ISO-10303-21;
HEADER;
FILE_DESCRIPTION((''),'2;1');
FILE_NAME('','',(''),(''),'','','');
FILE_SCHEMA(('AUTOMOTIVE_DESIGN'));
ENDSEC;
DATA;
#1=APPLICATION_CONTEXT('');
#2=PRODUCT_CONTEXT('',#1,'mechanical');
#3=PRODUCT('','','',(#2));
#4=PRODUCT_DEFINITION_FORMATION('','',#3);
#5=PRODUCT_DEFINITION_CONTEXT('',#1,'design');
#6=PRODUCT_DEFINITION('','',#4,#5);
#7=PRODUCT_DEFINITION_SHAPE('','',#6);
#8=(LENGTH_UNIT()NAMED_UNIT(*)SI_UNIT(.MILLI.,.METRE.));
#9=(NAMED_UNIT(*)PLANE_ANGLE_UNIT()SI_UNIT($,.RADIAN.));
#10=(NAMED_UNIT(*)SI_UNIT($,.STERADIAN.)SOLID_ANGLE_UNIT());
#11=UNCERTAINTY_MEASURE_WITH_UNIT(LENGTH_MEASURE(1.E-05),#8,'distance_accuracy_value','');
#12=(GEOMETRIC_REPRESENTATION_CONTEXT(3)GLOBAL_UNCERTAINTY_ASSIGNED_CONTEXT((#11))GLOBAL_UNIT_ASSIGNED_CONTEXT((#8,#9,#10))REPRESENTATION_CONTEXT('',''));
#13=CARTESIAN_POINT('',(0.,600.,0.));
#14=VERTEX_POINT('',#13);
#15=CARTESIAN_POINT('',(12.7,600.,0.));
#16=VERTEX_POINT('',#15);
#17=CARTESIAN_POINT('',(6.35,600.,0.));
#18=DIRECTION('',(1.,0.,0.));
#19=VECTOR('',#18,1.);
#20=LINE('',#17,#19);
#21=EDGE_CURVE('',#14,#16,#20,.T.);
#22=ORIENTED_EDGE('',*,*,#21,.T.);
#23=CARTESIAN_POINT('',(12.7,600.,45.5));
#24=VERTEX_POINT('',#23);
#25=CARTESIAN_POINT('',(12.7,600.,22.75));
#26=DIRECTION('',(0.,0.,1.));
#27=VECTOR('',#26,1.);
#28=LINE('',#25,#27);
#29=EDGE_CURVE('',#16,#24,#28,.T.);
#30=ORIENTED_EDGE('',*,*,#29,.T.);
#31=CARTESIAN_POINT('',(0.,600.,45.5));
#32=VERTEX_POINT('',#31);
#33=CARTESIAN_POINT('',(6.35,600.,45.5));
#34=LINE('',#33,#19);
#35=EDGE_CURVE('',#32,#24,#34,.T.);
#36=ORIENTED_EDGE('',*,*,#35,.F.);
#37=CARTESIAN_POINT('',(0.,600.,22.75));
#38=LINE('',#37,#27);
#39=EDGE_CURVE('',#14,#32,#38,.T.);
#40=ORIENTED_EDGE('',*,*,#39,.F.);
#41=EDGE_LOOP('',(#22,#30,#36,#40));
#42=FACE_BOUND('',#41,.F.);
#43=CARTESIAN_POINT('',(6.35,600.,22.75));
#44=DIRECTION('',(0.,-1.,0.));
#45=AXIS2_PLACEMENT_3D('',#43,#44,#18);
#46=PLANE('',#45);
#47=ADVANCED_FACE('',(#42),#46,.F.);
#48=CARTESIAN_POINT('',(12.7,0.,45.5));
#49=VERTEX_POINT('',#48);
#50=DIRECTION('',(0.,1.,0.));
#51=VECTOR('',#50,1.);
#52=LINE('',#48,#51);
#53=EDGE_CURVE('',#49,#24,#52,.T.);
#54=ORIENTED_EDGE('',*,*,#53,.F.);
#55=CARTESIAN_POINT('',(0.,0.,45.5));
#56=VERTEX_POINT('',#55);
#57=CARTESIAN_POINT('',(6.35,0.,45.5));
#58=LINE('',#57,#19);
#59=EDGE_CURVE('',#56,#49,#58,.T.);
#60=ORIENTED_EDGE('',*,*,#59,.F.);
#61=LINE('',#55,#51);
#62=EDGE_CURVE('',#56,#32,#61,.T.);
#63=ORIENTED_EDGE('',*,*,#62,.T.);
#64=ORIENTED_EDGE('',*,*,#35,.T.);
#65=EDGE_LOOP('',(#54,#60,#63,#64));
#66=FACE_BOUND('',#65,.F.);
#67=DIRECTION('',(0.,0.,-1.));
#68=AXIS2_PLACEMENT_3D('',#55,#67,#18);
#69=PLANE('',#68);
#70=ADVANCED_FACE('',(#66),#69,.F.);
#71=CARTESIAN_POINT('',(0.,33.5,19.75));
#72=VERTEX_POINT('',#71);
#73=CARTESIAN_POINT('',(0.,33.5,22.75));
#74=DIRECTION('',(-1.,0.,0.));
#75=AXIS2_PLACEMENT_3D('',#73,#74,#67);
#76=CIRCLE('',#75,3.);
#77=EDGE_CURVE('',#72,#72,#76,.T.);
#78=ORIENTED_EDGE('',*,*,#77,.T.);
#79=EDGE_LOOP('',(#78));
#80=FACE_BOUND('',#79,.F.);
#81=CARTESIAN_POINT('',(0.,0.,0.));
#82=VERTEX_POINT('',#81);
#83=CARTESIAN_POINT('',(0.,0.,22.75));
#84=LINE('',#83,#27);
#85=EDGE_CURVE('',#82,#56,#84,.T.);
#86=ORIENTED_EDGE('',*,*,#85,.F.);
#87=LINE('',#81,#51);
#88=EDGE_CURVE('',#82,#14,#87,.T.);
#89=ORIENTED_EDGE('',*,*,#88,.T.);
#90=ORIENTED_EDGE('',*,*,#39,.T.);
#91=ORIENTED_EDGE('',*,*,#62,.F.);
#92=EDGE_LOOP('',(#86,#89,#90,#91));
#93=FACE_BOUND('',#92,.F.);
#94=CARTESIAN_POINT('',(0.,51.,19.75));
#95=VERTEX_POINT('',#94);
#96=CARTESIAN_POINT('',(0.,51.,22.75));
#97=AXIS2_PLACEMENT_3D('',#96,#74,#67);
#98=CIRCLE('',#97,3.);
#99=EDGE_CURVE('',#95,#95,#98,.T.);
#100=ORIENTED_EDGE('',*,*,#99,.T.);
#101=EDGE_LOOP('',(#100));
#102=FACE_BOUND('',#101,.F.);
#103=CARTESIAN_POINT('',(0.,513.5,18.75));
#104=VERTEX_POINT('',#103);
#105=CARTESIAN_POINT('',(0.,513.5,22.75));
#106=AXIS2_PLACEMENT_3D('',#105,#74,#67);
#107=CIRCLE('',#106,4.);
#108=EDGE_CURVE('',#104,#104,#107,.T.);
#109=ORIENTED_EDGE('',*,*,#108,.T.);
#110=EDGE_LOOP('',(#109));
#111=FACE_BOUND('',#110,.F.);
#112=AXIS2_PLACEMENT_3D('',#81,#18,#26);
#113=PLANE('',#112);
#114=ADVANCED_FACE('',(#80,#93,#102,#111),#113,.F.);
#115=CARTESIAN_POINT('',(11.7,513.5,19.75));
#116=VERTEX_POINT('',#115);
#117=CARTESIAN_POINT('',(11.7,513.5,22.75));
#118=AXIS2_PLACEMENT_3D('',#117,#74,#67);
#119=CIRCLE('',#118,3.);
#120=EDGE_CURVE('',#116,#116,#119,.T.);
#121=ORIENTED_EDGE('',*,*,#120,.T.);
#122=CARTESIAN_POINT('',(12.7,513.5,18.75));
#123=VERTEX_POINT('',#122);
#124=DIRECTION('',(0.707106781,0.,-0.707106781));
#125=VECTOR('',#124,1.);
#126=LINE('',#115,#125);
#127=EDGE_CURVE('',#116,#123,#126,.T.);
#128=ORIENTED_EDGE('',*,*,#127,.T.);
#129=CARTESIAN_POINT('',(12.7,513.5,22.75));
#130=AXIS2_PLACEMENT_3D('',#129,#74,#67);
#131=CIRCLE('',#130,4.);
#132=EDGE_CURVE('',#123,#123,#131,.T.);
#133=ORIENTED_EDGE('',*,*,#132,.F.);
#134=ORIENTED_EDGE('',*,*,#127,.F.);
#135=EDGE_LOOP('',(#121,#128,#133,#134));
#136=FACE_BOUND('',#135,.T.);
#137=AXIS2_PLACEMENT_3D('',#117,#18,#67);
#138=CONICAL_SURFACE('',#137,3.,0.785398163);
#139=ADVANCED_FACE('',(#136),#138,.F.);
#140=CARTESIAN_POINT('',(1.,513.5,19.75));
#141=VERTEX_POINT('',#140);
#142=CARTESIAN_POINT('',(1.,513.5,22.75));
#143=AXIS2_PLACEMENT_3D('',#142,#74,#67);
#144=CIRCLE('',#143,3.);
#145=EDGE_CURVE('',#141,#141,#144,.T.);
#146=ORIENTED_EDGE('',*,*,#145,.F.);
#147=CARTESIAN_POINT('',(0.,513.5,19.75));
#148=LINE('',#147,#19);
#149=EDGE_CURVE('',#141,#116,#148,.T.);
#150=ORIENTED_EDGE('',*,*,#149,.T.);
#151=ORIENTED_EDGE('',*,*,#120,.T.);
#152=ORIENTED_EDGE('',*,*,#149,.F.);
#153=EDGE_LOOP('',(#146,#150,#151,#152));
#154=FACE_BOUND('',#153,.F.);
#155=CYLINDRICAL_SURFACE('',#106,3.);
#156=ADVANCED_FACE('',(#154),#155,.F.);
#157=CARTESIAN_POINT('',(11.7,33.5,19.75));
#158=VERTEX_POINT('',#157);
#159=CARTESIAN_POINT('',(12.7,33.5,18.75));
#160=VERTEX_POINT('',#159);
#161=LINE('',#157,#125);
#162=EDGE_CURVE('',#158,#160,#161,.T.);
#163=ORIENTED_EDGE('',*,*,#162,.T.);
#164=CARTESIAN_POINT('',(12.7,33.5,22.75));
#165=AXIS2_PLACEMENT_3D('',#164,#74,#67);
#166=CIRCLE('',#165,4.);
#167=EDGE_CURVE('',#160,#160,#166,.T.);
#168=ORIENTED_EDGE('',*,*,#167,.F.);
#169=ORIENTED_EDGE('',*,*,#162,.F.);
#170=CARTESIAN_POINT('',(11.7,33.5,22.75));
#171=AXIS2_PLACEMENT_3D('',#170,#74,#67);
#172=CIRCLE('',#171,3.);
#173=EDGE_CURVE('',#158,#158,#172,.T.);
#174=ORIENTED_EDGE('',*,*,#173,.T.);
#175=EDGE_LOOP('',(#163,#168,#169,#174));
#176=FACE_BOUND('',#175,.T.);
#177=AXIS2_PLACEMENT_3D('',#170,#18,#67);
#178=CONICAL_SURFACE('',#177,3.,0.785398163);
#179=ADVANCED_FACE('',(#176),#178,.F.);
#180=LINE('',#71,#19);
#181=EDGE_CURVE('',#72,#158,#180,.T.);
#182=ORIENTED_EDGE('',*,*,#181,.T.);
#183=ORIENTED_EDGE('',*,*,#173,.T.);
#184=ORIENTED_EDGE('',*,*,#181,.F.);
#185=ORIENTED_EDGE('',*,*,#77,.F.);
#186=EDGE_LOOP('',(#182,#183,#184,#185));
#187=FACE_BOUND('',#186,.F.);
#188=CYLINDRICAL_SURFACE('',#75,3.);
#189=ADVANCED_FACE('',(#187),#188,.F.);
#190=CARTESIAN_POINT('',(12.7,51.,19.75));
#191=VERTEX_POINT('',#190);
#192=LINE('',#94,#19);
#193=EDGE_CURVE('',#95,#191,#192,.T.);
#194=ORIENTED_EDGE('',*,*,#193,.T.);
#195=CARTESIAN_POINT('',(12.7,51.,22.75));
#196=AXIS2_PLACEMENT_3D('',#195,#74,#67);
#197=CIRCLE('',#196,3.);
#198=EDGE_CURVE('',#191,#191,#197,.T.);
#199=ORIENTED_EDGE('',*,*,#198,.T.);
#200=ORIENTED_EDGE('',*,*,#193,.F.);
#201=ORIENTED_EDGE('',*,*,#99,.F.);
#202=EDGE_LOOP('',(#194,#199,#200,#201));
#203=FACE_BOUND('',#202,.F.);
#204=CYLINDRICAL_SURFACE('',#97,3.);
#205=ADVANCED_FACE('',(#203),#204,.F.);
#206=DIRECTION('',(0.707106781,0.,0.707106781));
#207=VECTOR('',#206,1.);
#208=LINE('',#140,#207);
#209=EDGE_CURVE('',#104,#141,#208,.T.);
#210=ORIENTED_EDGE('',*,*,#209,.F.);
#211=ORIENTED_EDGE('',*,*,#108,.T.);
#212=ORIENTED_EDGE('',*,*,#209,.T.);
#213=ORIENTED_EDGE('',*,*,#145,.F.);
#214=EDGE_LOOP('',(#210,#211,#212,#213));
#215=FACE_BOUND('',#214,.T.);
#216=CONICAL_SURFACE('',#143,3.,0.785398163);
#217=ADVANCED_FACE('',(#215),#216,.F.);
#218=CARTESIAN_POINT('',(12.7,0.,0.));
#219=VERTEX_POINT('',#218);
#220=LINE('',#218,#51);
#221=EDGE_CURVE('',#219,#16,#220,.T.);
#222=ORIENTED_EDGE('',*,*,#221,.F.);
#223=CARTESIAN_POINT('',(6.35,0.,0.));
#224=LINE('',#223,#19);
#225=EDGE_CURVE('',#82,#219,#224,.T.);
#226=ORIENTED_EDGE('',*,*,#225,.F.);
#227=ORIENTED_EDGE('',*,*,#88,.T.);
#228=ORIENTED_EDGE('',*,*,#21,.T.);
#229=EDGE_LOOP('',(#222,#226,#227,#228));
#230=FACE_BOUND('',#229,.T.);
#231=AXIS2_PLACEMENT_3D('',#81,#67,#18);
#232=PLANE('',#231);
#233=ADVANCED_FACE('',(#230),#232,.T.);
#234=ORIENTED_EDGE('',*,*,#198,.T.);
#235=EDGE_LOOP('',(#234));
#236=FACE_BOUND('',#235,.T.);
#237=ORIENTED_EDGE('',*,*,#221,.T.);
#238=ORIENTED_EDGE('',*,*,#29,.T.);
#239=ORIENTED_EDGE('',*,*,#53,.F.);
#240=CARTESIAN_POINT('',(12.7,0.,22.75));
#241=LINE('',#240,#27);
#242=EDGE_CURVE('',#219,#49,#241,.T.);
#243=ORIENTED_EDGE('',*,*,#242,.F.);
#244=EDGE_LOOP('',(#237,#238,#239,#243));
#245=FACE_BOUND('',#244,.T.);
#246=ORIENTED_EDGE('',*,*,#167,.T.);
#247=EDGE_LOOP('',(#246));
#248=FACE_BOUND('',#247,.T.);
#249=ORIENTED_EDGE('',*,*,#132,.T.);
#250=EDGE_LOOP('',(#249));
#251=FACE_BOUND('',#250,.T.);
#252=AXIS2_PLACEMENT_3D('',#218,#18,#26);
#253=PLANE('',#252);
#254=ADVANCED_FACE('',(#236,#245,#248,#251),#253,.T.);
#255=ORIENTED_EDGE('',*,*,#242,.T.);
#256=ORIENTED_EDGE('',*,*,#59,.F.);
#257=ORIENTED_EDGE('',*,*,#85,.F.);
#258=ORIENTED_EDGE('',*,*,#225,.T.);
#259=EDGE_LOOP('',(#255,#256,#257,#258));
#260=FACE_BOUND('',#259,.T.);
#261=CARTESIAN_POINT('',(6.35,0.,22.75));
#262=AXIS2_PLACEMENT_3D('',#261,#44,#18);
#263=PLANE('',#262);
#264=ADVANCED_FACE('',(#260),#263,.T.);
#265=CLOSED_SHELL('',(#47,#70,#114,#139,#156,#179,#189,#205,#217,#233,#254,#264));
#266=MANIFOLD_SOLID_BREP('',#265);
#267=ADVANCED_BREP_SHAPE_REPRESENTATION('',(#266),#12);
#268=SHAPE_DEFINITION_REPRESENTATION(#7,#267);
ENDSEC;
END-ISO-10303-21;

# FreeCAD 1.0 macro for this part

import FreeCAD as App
import Part
import Sketcher

V = App.Vector
Q = App.Units.Quantity


def edges_at(feature, points):
    """Names of the edges that pass closest to the given points."""
    edges = feature.Shape.Edges
    near = lambda p: min(range(len(edges)), key=lambda i: edges[i].distToShape(Part.Vertex(*p))[0])
    return sorted({f"Edge{near(p) + 1}" for p in points})

doc = App.newDocument("Part")
body = doc.addObject("PartDesign::Body", "Body")

# Sketch on XZ plane
sketch1 = doc.addObject("Sketcher::SketchObject", "Sketch")
body.addObject(sketch1)
sketch1.AttachmentSupport = (doc.XZ_Plane, [""])
sketch1.MapMode = "FlatFace"
sketch1.addGeometry(Part.LineSegment(V(0, 46, 0), V(0, 0, 0)), False)
sketch1.addGeometry(Part.LineSegment(V(0, 0, 0), V(13, 0, 0)), False)
sketch1.addGeometry(Part.LineSegment(V(13, 0, 0), V(13, 46, 0)), False)
sketch1.addGeometry(Part.LineSegment(V(13, 46, 0), V(0, 46, 0)), False)
sketch1.addConstraint(Sketcher.Constraint("Coincident", 0, 2, 1, 1))
sketch1.addConstraint(Sketcher.Constraint("Coincident", 1, 2, 2, 1))
sketch1.addConstraint(Sketcher.Constraint("Coincident", 2, 2, 3, 1))
sketch1.addConstraint(Sketcher.Constraint("Coincident", 3, 2, 0, 1))
sketch1.addConstraint(Sketcher.Constraint("Vertical", 0))
sketch1.addConstraint(Sketcher.Constraint("Horizontal", 1))
sketch1.addConstraint(Sketcher.Constraint("Vertical", 2))
sketch1.addConstraint(Sketcher.Constraint("Horizontal", 3))
sketch1.addConstraint(Sketcher.Constraint("Coincident", 0, 2, -1, 1))
sketch1.addConstraint(Sketcher.Constraint("DistanceX", 1, 1, 1, 2, Q("12.7 mm")))
sketch1.addConstraint(Sketcher.Constraint("DistanceY", 0, 2, 0, 1, Q("45.5 mm")))
pad1 = doc.addObject("PartDesign::Pad", "Pad")
body.addObject(pad1)
pad1.Profile = sketch1
pad1.Length = 600
pad1.Reversed = True

# Sketch on YZ plane
sketch2 = doc.addObject("Sketcher::SketchObject", "Sketch001")
body.addObject(sketch2)
sketch2.AttachmentSupport = (doc.YZ_Plane, [""])
sketch2.MapMode = "FlatFace"
sketch2.addGeometry(Part.Circle(V(51, 22.8, 0), V(0, 0, 1), 3), False)
sketch2.addGeometry(Part.Circle(V(33.5, 22.8, 0), V(0, 0, 1), 3), False)
sketch2.addGeometry(Part.Circle(V(513.5, 22.8, 0), V(0, 0, 1), 3), False)
sketch2.addConstraint(Sketcher.Constraint("Equal", 0, 1))
sketch2.addConstraint(Sketcher.Constraint("Equal", 1, 2))
sketch2.addConstraint(Sketcher.Constraint("Horizontal", 0, 3, 1, 3))
sketch2.addConstraint(Sketcher.Constraint("Horizontal", 1, 3, 2, 3))
sketch2.addConstraint(Sketcher.Constraint("Diameter", 0, Q("6 mm")))
sketch2.addConstraint(Sketcher.Constraint("DistanceX", -1, 1, 0, 3, Q("51 mm")))
sketch2.addConstraint(Sketcher.Constraint("DistanceX", 1, 3, 2, 3, Q("480 mm")))
sketch2.addConstraint(Sketcher.Constraint("DistanceX", -1, 1, 1, 3, Q("33.5 mm")))
sketch2.addConstraint(Sketcher.Constraint("DistanceY", -1, 1, 0, 3, Q("22.75 mm")))
pocket1 = doc.addObject("PartDesign::Pocket", "Pocket")
body.addObject(pocket1)
pocket1.Profile = sketch2
pocket1.Length = 25
pocket1.Reversed = True
doc.recompute()

chamfer = doc.addObject("PartDesign::Chamfer", "Chamfer")
body.addObject(chamfer)
chamfer.Base = (pocket1, edges_at(pocket1, [(0, 513.5, 25.75)]))
chamfer.Size = 1
doc.recompute()

chamfer2 = doc.addObject("PartDesign::Chamfer", "Chamfer001")
body.addObject(chamfer2)
chamfer2.Base = (chamfer, edges_at(chamfer, [(12.7, 33.5, 25.75), (12.7, 513.5, 25.75)]))
chamfer2.Size = 1

doc.recompute()
